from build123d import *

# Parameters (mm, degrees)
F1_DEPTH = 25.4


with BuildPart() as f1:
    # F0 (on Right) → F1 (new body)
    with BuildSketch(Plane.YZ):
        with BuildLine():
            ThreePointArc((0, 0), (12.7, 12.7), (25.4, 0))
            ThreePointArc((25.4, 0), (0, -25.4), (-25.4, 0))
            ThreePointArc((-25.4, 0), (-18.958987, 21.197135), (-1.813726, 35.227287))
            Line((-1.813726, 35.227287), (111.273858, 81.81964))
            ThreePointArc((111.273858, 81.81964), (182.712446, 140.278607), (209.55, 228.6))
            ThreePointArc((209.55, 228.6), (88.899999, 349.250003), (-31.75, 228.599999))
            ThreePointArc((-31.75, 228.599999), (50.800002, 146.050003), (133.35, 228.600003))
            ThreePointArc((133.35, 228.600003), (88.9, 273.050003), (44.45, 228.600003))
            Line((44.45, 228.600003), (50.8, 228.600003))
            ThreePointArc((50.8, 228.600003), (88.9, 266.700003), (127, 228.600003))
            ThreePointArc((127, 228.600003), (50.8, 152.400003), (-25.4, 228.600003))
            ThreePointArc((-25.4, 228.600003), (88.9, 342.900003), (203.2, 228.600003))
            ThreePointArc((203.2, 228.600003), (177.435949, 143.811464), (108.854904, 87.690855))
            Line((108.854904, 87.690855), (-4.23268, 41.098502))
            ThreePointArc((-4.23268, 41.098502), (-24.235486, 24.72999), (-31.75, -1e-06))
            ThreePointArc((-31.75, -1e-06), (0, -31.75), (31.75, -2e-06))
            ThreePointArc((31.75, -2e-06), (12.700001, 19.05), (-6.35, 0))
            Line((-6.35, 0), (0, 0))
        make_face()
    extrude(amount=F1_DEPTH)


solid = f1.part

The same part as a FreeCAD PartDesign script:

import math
import FreeCAD as App
import Part
import Sketcher
Q = App.Units.Quantity

doc = App.newDocument("Part")
params = doc.addObject("Spreadsheet::Sheet", "Params")
for row, (alias, value) in enumerate([
    ("sketch1_radius", "1 in"),
    ("sketch1_radius2", "6.25 in"),
    ("pad1_length", "1 in"),
], start=1):
    params.set(f"A{row}", alias)
    params.set(f"B{row}", "=" + value)
    params.setAlias(f"B{row}", alias)

body = doc.addObject("PartDesign::Body", "Body")

sketch1 = body.newObject("Sketcher::SketchObject", "Sketch")
sketch1.AttachmentSupport = (doc.getObject("YZ_Plane"), [""])
sketch1.MapMode = "FlatFace"
sketch1.addGeometry(Part.ArcOfCircle(Part.Circle(App.Vector(13, 0, 0), App.Vector(0, 0, 1), 13), math.radians(0), math.radians(180)), False)
sketch1.addGeometry(Part.ArcOfCircle(Part.Circle(App.Vector(0, 0, 0), App.Vector(0, 0, 1), 25), math.radians(180), math.radians(360)), False)
sketch1.addGeometry(Part.ArcOfCircle(Part.Circle(App.Vector(13, 0, 0), App.Vector(0, 0, 1), 38), math.radians(112), math.radians(180)), False)
sketch1.addGeometry(Part.LineSegment(App.Vector(-2, 35, 0), App.Vector(111, 82, 0)), False)
sketch1.addGeometry(Part.ArcOfCircle(Part.Circle(App.Vector(51, 229, 0), App.Vector(0, 0, 1), 159), math.radians(-68), math.radians(0)), False)
sketch1.addGeometry(Part.ArcOfCircle(Part.Circle(App.Vector(89, 229, 0), App.Vector(0, 0, 1), 121), math.radians(0), math.radians(180)), False)
sketch1.addGeometry(Part.ArcOfCircle(Part.Circle(App.Vector(51, 229, 0), App.Vector(0, 0, 1), 83), math.radians(-180), math.radians(0)), False)
sketch1.addGeometry(Part.ArcOfCircle(Part.Circle(App.Vector(89, 229, 0), App.Vector(0, 0, 1), 44), math.radians(0), math.radians(180)), False)
sketch1.addGeometry(Part.LineSegment(App.Vector(44, 229, 0), App.Vector(51, 229, 0)), False)
sketch1.addGeometry(Part.ArcOfCircle(Part.Circle(App.Vector(89, 229, 0), App.Vector(0, 0, 1), 38), math.radians(0), math.radians(180)), False)
sketch1.addGeometry(Part.ArcOfCircle(Part.Circle(App.Vector(51, 229, 0), App.Vector(0, 0, 1), 76), math.radians(180), math.radians(360)), False)
sketch1.addGeometry(Part.ArcOfCircle(Part.Circle(App.Vector(89, 229, 0), App.Vector(0, 0, 1), 114), math.radians(0), math.radians(180)), False)
sketch1.addGeometry(Part.ArcOfCircle(Part.Circle(App.Vector(51, 229, 0), App.Vector(0, 0, 1), 152), math.radians(-68), math.radians(0)), False)
sketch1.addGeometry(Part.LineSegment(App.Vector(109, 88, 0), App.Vector(-4, 41, 0)), False)
sketch1.addGeometry(Part.ArcOfCircle(Part.Circle(App.Vector(13, 0, 0), App.Vector(0, 0, 1), 44), math.radians(112), math.radians(180)), False)
sketch1.addGeometry(Part.ArcOfCircle(Part.Circle(App.Vector(0, 0, 0), App.Vector(0, 0, 1), 32), math.radians(-180), math.radians(0)), False)
sketch1.addGeometry(Part.ArcOfCircle(Part.Circle(App.Vector(13, 0, 0), App.Vector(0, 0, 1), 19), math.radians(0), math.radians(180)), False)
sketch1.addGeometry(Part.LineSegment(App.Vector(-6, 0, 0), App.Vector(0, 0, 0)), False)
sketch1.addConstraint(Sketcher.Constraint("Tangent", 0, 1, 1, 2))
sketch1.addConstraint(Sketcher.Constraint("Tangent", 1, 1, 2, 2))
sketch1.addConstraint(Sketcher.Constraint("Tangent", 2, 1, 3, 1))
sketch1.addConstraint(Sketcher.Constraint("Tangent", 3, 2, 4, 1))
sketch1.addConstraint(Sketcher.Constraint("Tangent", 4, 2, 5, 1))
sketch1.addConstraint(Sketcher.Constraint("Tangent", 5, 2, 6, 1))
sketch1.addConstraint(Sketcher.Constraint("Tangent", 6, 2, 7, 1))
sketch1.addConstraint(Sketcher.Constraint("Coincident", 7, 2, 8, 1))
sketch1.addConstraint(Sketcher.Constraint("Coincident", 8, 2, 9, 2))
sketch1.addConstraint(Sketcher.Constraint("Tangent", 9, 1, 10, 2))
sketch1.addConstraint(Sketcher.Constraint("Tangent", 10, 1, 11, 2))
sketch1.addConstraint(Sketcher.Constraint("Tangent", 11, 1, 12, 2))
sketch1.addConstraint(Sketcher.Constraint("Tangent", 12, 1, 13, 1))
sketch1.addConstraint(Sketcher.Constraint("Tangent", 13, 2, 14, 1))
sketch1.addConstraint(Sketcher.Constraint("Tangent", 14, 2, 15, 1))
sketch1.addConstraint(Sketcher.Constraint("Tangent", 15, 2, 16, 1))
sketch1.addConstraint(Sketcher.Constraint("Coincident", 16, 2, 17, 1))
sketch1.addConstraint(Sketcher.Constraint("Coincident", 17, 2, 0, 2))
sketch1.addConstraint(Sketcher.Constraint("Horizontal", 8))
sketch1.addConstraint(Sketcher.Constraint("Horizontal", 17))
sketch1.addConstraint(Sketcher.Constraint("Coincident", 1, 3, -1, 1))
sketch1.addConstraint(Sketcher.Constraint("Coincident", 15, 3, -1, 1))
sketch1.addConstraint(Sketcher.Constraint("Coincident", 17, 2, -1, 1))
sketch1.addConstraint(Sketcher.Constraint("Coincident", 2, 3, 0, 3))
sketch1.addConstraint(Sketcher.Constraint("Coincident", 6, 3, 4, 3))
sketch1.addConstraint(Sketcher.Constraint("Coincident", 7, 3, 5, 3))
sketch1.addConstraint(Sketcher.Constraint("Coincident", 9, 3, 5, 3))
sketch1.addConstraint(Sketcher.Constraint("Coincident", 10, 3, 4, 3))
sketch1.addConstraint(Sketcher.Constraint("Coincident", 11, 3, 5, 3))
sketch1.addConstraint(Sketcher.Constraint("Coincident", 12, 3, 4, 3))
sketch1.addConstraint(Sketcher.Constraint("Coincident", 14, 3, 0, 3))
sketch1.addConstraint(Sketcher.Constraint("Coincident", 16, 3, 0, 3))
sketch1.addConstraint(Sketcher.Constraint("Coincident", 8, 2, 4, 3))
sketch1.addConstraint(Sketcher.Constraint("Equal", 2, 9))
sketch1.addConstraint(Sketcher.Constraint("Equal", 7, 14))
sketch1.addConstraint(Sketcher.Constraint("PointOnObject", 0, 3, -1))
sketch1.addConstraint(Sketcher.Constraint("Horizontal", 4, 3, 5, 3))
sketch1.addConstraint(Sketcher.Constraint("Vertical", 1, 1, 10, 1))
sketch1.addConstraint(Sketcher.Constraint("Radius", 1, Q("1 in")))
sketch1.addConstraint(Sketcher.Constraint("Radius", 4, Q("6.25 in")))
sketch1.addConstraint(Sketcher.Constraint("DistanceY", -1, 1, 4, 3, Q("9.0000002 in")))
sketch1.setExpression("Constraints[38]", "Params.sketch1_radius")
sketch1.setExpression("Constraints[39]", "Params.sketch1_radius2")
pad1 = body.newObject("PartDesign::Pad", "Pad")
pad1.Profile = sketch1
pad1.setExpression("Length", "Params.pad1_length")

doc.recompute()
